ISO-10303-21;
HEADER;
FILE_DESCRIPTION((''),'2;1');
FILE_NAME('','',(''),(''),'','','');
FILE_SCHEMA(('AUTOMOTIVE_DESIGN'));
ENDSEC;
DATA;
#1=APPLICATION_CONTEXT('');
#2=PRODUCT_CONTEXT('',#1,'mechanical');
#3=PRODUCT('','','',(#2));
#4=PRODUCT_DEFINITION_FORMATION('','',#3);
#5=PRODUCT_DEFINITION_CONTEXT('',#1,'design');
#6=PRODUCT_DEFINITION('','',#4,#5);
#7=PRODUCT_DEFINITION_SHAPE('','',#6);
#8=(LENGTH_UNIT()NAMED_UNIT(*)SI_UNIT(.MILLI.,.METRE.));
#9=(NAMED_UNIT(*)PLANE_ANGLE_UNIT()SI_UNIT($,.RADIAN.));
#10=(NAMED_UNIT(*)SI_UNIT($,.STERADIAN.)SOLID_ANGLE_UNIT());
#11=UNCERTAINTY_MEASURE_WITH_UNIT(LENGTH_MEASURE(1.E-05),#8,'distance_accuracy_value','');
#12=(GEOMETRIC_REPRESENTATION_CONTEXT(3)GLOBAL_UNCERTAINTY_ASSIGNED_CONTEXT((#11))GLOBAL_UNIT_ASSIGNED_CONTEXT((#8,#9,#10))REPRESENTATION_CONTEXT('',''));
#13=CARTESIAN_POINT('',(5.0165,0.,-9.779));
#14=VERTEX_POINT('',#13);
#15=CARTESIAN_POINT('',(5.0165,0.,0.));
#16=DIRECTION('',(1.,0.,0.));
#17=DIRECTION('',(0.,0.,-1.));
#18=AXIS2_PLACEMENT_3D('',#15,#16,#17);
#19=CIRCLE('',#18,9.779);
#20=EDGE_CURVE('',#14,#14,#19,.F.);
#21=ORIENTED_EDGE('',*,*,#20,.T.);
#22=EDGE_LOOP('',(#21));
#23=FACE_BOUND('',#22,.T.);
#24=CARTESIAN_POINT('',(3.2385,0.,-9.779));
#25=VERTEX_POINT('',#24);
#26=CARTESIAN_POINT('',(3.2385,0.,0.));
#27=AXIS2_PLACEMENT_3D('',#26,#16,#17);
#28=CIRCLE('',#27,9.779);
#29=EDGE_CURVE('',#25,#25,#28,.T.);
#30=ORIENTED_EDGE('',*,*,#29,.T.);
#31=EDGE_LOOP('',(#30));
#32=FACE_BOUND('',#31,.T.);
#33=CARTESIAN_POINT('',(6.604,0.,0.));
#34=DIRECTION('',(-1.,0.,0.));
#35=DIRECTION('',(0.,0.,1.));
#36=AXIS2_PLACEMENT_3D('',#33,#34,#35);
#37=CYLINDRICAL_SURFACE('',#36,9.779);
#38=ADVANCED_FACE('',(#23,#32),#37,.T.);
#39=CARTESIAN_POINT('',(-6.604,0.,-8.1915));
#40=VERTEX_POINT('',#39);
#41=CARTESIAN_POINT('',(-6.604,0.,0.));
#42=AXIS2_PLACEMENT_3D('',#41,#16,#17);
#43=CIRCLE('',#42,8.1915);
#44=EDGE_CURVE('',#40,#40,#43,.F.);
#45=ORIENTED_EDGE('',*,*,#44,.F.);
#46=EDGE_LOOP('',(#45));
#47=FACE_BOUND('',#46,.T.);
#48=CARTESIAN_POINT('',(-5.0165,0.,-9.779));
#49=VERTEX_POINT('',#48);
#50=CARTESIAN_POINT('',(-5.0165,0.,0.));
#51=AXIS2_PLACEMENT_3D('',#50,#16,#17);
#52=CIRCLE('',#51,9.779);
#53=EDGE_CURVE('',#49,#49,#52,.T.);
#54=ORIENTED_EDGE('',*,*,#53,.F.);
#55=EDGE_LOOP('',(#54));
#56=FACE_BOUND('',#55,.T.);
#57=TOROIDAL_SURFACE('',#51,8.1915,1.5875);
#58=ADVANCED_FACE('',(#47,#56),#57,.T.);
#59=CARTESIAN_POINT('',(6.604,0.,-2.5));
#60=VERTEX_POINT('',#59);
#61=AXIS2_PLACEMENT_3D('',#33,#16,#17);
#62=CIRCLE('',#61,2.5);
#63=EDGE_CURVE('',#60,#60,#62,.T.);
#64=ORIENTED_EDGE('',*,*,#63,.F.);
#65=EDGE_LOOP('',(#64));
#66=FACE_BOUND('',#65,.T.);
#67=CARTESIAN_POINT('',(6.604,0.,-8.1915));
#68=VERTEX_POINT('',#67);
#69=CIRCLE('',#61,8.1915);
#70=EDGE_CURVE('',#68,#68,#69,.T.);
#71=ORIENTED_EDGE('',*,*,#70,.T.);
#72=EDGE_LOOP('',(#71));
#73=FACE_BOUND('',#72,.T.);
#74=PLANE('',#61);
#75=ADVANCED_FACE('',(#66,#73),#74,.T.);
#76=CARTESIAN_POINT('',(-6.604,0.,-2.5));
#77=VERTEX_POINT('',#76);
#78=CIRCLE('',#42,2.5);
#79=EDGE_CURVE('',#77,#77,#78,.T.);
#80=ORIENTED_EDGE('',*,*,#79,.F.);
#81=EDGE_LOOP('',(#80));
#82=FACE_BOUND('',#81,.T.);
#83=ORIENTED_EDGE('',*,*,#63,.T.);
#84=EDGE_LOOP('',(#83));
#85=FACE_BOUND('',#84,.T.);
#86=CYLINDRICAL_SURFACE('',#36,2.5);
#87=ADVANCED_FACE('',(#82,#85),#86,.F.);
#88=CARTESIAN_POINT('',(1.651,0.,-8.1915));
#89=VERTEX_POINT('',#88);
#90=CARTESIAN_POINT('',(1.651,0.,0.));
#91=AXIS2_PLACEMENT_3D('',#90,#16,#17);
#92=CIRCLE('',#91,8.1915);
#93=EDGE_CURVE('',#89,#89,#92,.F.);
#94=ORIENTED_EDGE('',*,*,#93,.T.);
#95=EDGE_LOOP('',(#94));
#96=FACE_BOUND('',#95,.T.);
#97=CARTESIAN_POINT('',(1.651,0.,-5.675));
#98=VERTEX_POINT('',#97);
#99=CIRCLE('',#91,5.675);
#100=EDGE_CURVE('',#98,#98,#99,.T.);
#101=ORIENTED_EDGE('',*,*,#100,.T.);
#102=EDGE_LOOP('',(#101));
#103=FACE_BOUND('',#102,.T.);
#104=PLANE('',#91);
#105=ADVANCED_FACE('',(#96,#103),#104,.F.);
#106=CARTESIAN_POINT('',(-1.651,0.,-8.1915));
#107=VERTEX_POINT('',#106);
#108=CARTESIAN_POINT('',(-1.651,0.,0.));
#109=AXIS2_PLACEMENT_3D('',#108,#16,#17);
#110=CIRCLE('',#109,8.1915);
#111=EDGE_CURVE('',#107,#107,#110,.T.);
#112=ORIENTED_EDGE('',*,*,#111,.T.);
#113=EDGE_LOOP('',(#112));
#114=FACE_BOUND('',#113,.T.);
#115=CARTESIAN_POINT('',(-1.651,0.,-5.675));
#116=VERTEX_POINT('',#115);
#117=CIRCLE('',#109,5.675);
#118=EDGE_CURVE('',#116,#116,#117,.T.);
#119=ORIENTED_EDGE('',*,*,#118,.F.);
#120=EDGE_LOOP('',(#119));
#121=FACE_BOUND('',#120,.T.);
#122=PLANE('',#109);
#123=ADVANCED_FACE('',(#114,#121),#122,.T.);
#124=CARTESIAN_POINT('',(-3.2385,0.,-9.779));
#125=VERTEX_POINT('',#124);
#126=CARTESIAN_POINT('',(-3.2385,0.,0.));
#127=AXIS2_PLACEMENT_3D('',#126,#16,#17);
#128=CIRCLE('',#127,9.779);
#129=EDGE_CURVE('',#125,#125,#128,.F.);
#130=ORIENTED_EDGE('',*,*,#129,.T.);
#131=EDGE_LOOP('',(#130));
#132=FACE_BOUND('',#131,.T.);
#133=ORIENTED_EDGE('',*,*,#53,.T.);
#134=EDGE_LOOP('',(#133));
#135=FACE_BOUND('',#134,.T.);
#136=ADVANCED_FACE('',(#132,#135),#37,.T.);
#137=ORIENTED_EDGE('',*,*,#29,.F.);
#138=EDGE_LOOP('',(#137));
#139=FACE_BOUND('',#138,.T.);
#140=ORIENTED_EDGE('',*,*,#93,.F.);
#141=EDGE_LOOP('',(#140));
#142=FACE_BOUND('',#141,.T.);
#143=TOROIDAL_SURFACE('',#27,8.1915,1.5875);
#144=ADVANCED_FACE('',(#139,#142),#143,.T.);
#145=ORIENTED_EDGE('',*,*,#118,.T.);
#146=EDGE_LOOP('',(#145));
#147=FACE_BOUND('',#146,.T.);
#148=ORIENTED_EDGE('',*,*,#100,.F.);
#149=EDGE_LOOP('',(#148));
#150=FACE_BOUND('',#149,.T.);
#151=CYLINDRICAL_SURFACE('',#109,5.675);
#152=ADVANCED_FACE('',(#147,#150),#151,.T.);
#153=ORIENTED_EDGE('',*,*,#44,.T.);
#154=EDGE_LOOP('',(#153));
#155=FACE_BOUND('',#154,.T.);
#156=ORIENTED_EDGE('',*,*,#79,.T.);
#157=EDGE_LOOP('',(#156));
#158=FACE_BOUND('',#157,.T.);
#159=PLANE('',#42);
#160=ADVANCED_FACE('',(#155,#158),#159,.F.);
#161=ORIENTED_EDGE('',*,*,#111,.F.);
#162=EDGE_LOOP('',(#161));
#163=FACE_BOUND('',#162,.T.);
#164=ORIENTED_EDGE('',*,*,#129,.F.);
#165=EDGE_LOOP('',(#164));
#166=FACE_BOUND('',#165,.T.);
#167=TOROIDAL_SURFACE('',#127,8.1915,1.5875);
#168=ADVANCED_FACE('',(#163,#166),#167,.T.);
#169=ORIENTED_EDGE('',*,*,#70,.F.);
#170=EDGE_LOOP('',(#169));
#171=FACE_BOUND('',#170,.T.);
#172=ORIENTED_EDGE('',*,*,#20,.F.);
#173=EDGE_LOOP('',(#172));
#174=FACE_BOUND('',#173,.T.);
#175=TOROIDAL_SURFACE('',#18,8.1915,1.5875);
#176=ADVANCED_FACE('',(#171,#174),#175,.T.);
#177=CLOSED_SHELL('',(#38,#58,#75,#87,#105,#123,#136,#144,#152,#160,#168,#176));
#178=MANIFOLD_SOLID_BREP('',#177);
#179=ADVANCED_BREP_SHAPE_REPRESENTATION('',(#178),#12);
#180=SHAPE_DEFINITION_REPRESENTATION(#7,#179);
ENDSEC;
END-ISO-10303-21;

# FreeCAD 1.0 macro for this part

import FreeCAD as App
import Part
import Sketcher
from FreeCAD import Vector
Q = App.Units.Quantity


def edges_at(feature, points):
    """Names of the edges that pass closest to the given points."""
    edges = feature.Shape.Edges
    near = lambda p: min(range(len(edges)), key=lambda i: edges[i].distToShape(Part.Vertex(*p))[0])
    return sorted({f"Edge{near(p) + 1}" for p in points})

doc = App.newDocument("Part")
body = doc.addObject("PartDesign::Body", "Body")

# Sketch on YZ plane
sketch1 = body.newObject("Sketcher::SketchObject", "Sketch")
sketch1.AttachmentSupport = (doc.getObject("YZ_Plane"), [""])
sketch1.MapMode = "FlatFace"
sketch1.addGeometry(Part.Circle(Vector(0, 0, 0), Vector(0, 0, 1), 9.779), False)
sketch1.addGeometry(Part.Circle(Vector(0, 0, 0), Vector(0, 0, 1), 2.5), False)
sketch1.addConstraint(Sketcher.Constraint("Coincident", 0, 3, -1, 1))
sketch1.addConstraint(Sketcher.Constraint("Coincident", 1, 3, -1, 1))
sketch1.addConstraint(Sketcher.Constraint("Diameter", 0, Q("0.77 in")))
sketch1.addConstraint(Sketcher.Constraint("Diameter", 1, 5.0))
pad1 = body.newObject("PartDesign::Pad", "Pad")
pad1.Profile = sketch1
pad1.Length = Q("0.52 in")
pad1.Midplane = True

# Sketch on YZ plane
sketch2 = body.newObject("Sketcher::SketchObject", "Sketch001")
sketch2.AttachmentSupport = (doc.getObject("YZ_Plane"), [""])
sketch2.MapMode = "FlatFace"
sketch2.addGeometry(Part.Circle(Vector(0, 0, 0), Vector(0, 0, 1), 11.049), False)
sketch2.addGeometry(Part.Circle(Vector(0, 0, 0), Vector(0, 0, 1), 5.675), False)
sketch2.addConstraint(Sketcher.Constraint("Coincident", 0, 3, -1, 1))
sketch2.addConstraint(Sketcher.Constraint("Coincident", 1, 3, -1, 1))
sketch2.addConstraint(Sketcher.Constraint("Diameter", 0, Q("0.87 in")))
sketch2.addConstraint(Sketcher.Constraint("Diameter", 1, 11.35))
pocket1 = body.newObject("PartDesign::Pocket", "Pocket")
pocket1.Profile = sketch2
pocket1.Length = Q("0.13 in")
pocket1.Midplane = True
doc.recompute()

fillet = body.newObject("PartDesign::Fillet", "Fillet")
fillet.Base = (pocket1, edges_at(pocket1, [
    (1.651, 0, 9.779),
    (-1.651, 0, 9.779),
    (-6.604, 0, 9.779),
    (6.604, 0, 9.779),
]))
fillet.Radius = Q("0.0625 in")

doc.recompute()
